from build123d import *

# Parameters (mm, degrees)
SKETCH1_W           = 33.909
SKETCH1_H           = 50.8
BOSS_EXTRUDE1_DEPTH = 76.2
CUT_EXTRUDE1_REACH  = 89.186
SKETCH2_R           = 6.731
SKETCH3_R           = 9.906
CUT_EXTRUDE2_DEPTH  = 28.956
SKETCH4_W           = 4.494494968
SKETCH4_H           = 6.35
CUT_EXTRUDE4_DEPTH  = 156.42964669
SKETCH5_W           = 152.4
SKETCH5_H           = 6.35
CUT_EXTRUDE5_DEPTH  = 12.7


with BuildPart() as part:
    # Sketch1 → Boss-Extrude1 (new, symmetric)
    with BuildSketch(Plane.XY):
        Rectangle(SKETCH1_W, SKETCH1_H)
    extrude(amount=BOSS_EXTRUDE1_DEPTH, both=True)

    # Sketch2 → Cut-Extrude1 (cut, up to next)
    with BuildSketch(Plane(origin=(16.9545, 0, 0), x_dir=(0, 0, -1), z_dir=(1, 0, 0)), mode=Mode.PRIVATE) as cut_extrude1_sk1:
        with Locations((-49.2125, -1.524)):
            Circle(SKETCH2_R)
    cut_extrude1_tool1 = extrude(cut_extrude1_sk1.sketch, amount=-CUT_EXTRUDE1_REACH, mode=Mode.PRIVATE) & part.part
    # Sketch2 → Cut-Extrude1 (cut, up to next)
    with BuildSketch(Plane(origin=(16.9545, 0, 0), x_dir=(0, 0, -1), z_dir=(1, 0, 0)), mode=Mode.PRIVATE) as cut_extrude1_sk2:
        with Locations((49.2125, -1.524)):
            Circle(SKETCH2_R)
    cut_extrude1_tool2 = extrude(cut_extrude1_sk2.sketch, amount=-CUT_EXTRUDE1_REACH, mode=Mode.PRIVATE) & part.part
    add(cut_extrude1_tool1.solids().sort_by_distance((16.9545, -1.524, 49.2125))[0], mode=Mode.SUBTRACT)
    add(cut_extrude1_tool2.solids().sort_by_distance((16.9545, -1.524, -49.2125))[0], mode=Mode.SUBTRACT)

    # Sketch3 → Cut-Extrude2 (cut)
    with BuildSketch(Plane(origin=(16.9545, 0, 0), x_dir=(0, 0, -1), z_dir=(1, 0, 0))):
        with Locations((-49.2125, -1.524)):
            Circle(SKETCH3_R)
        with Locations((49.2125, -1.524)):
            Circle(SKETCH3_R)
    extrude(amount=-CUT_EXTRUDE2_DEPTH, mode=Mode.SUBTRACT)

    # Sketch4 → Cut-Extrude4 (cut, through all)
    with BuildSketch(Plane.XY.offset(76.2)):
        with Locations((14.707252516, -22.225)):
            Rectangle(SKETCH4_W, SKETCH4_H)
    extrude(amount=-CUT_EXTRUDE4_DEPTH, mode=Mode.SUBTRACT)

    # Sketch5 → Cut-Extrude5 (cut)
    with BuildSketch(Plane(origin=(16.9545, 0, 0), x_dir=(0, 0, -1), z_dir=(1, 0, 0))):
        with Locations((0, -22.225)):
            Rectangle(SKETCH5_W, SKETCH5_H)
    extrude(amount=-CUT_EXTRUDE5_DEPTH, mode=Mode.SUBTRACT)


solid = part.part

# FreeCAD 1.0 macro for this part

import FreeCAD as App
import Part
import Sketcher
from FreeCAD import Vector
Q = App.Units.Quantity

doc = App.newDocument("Part")
body = doc.addObject("PartDesign::Body", "Body")

# Sketch on XY plane
sketch1 = body.newObject("Sketcher::SketchObject", "Sketch")
sketch1.AttachmentSupport = (doc.getObject("XY_Plane"), [""])
sketch1.MapMode = "FlatFace"
sketch1.addGeometry(Part.LineSegment(Vector(-16.9545, 25.4, 0), Vector(-16.9545, -25.4, 0)), False)
sketch1.addGeometry(Part.LineSegment(Vector(-16.9545, -25.4, 0), Vector(16.9545, -25.4, 0)), False)
sketch1.addGeometry(Part.LineSegment(Vector(16.9545, -25.4, 0), Vector(16.9545, 25.4, 0)), False)
sketch1.addGeometry(Part.LineSegment(Vector(16.9545, 25.4, 0), Vector(-16.9545, 25.4, 0)), False)
sketch1.addConstraint(Sketcher.Constraint("Coincident", 0, 2, 1, 1))
sketch1.addConstraint(Sketcher.Constraint("Coincident", 1, 2, 2, 1))
sketch1.addConstraint(Sketcher.Constraint("Coincident", 2, 2, 3, 1))
sketch1.addConstraint(Sketcher.Constraint("Coincident", 3, 2, 0, 1))
sketch1.addConstraint(Sketcher.Constraint("Vertical", 0))
sketch1.addConstraint(Sketcher.Constraint("Horizontal", 1))
sketch1.addConstraint(Sketcher.Constraint("Vertical", 2))
sketch1.addConstraint(Sketcher.Constraint("Horizontal", 3))
sketch1.addConstraint(Sketcher.Constraint("Symmetric", 0, 2, 2, 2, -1, 1))
sketch1.addConstraint(Sketcher.Constraint("DistanceY", 0, 2, 0, 1, Q("2 in")))
sketch1.addConstraint(Sketcher.Constraint("DistanceX", 1, 1, 1, 2, Q("1.335 in")))
pad1 = body.newObject("PartDesign::Pad", "Pad")
pad1.Profile = sketch1
pad1.Length = Q("6 in")
pad1.Midplane = True

# Sketch on YZ plane
sketch2 = body.newObject("Sketcher::SketchObject", "Sketch001")
sketch2.AttachmentSupport = (doc.getObject("YZ_Plane"), [""])
sketch2.MapMode = "FlatFace"
sketch2.AttachmentOffset = App.Placement(Vector(0, 0, 0.6675 * 25.4), App.Rotation())
sketch2.addGeometry(Part.Circle(Vector(-1.524, 49.2125, 0), Vector(0, 0, 1), 6.731), False)
sketch2.addConstraint(Sketcher.Constraint("Diameter", 0, Q("0.53 in")))
sketch2.addConstraint(Sketcher.Constraint("DistanceX", 0, 3, -1, 1, Q("0.06 in")))
sketch2.addConstraint(Sketcher.Constraint("DistanceY", -1, 1, 0, 3, Q("1.9375 in")))
pocket1 = body.newObject("PartDesign::Pocket", "Pocket")
pocket1.Profile = sketch2
pocket1.Type = "UpToFirst"

# Sketch on YZ plane
sketch3 = body.newObject("Sketcher::SketchObject", "Sketch002")
sketch3.AttachmentSupport = (doc.getObject("YZ_Plane"), [""])
sketch3.MapMode = "FlatFace"
sketch3.AttachmentOffset = App.Placement(Vector(0, 0, 0.6675 * 25.4), App.Rotation())
sketch3.addGeometry(Part.Circle(Vector(-1.524, -49.2125, 0), Vector(0, 0, 1), 6.731), False)
sketch3.addConstraint(Sketcher.Constraint("Diameter", 0, Q("0.53 in")))
sketch3.addConstraint(Sketcher.Constraint("DistanceX", 0, 3, -1, 1, Q("0.06 in")))
sketch3.addConstraint(Sketcher.Constraint("DistanceY", 0, 3, -1, 1, Q("1.9375 in")))
pocket2 = body.newObject("PartDesign::Pocket", "Pocket001")
pocket2.Profile = sketch3
pocket2.Type = "UpToFirst"

# Sketch on YZ plane
sketch4 = body.newObject("Sketcher::SketchObject", "Sketch003")
sketch4.AttachmentSupport = (doc.getObject("YZ_Plane"), [""])
sketch4.MapMode = "FlatFace"
sketch4.AttachmentOffset = App.Placement(Vector(0, 0, 0.6675 * 25.4), App.Rotation())
sketch4.addGeometry(Part.Circle(Vector(-1.524, 49.2125, 0), Vector(0, 0, 1), 9.906), False)
sketch4.addGeometry(Part.Circle(Vector(-1.524, -49.2125, 0), Vector(0, 0, 1), 9.906), False)
sketch4.addConstraint(Sketcher.Constraint("Equal", 0, 1))
sketch4.addConstraint(Sketcher.Constraint("Symmetric", 0, 3, 1, 3, -1))
sketch4.addConstraint(Sketcher.Constraint("Diameter", 0, Q("0.78 in")))
sketch4.addConstraint(Sketcher.Constraint("DistanceX", 0, 3, -1, 1, Q("0.06 in")))
sketch4.addConstraint(Sketcher.Constraint("DistanceY", -1, 1, 0, 3, Q("1.9375 in")))
pocket3 = body.newObject("PartDesign::Pocket", "Pocket002")
pocket3.Profile = sketch4
pocket3.Length = Q("1.14 in")

# Sketch on XY plane
sketch5 = body.newObject("Sketcher::SketchObject", "Sketch004")
sketch5.AttachmentSupport = (doc.getObject("XY_Plane"), [""])
sketch5.MapMode = "FlatFace"
sketch5.AttachmentOffset = App.Placement(Vector(0, 0, 3 * 25.4), App.Rotation())
sketch5.addGeometry(Part.LineSegment(Vector(12.460005, -19.05, 0), Vector(12.460005, -25.4, 0)), False)
sketch5.addGeometry(Part.LineSegment(Vector(12.460005, -25.4, 0), Vector(16.9545, -25.4, 0)), False)
sketch5.addGeometry(Part.LineSegment(Vector(16.9545, -25.4, 0), Vector(16.9545, -19.05, 0)), False)
sketch5.addGeometry(Part.LineSegment(Vector(16.9545, -19.05, 0), Vector(12.460005, -19.05, 0)), False)
sketch5.addConstraint(Sketcher.Constraint("Coincident", 0, 2, 1, 1))
sketch5.addConstraint(Sketcher.Constraint("Coincident", 1, 2, 2, 1))
sketch5.addConstraint(Sketcher.Constraint("Coincident", 2, 2, 3, 1))
sketch5.addConstraint(Sketcher.Constraint("Coincident", 3, 2, 0, 1))
sketch5.addConstraint(Sketcher.Constraint("Vertical", 0))
sketch5.addConstraint(Sketcher.Constraint("Horizontal", 1))
sketch5.addConstraint(Sketcher.Constraint("Vertical", 2))
sketch5.addConstraint(Sketcher.Constraint("Horizontal", 3))
sketch5.addConstraint(Sketcher.Constraint("DistanceY", 0, 2, -1, 1, Q("1 in")))
sketch5.addConstraint(Sketcher.Constraint("DistanceY", 0, 2, 0, 1, Q("0.25 in")))
sketch5.addConstraint(Sketcher.Constraint("DistanceX", -1, 1, 1, 2, Q("0.6675 in")))
sketch5.addConstraint(Sketcher.Constraint("DistanceX", 1, 1, 1, 2, 4.494495))
pocket4 = body.newObject("PartDesign::Pocket", "Pocket003")
pocket4.Profile = sketch5
pocket4.Type = "ThroughAll"

# Sketch on YZ plane
sketch6 = body.newObject("Sketcher::SketchObject", "Sketch005")
sketch6.AttachmentSupport = (doc.getObject("YZ_Plane"), [""])
sketch6.MapMode = "FlatFace"
sketch6.AttachmentOffset = App.Placement(Vector(0, 0, 0.6675 * 25.4), App.Rotation())
sketch6.addGeometry(Part.LineSegment(Vector(-19.05, 76.2, 0), Vector(-25.4, 76.2, 0)), False)
sketch6.addGeometry(Part.LineSegment(Vector(-25.4, 76.2, 0), Vector(-25.4, -76.2, 0)), False)
sketch6.addGeometry(Part.LineSegment(Vector(-25.4, -76.2, 0), Vector(-19.05, -76.2, 0)), False)
sketch6.addGeometry(Part.LineSegment(Vector(-19.05, -76.2, 0), Vector(-19.05, 76.2, 0)), False)
sketch6.addConstraint(Sketcher.Constraint("Coincident", 0, 2, 1, 1))
sketch6.addConstraint(Sketcher.Constraint("Coincident", 1, 2, 2, 1))
sketch6.addConstraint(Sketcher.Constraint("Coincident", 2, 2, 3, 1))
sketch6.addConstraint(Sketcher.Constraint("Coincident", 3, 2, 0, 1))
sketch6.addConstraint(Sketcher.Constraint("Horizontal", 0))
sketch6.addConstraint(Sketcher.Constraint("Vertical", 1))
sketch6.addConstraint(Sketcher.Constraint("Horizontal", 2))
sketch6.addConstraint(Sketcher.Constraint("Vertical", 3))
sketch6.addConstraint(Sketcher.Constraint("DistanceY", 1, 2, 1, 1, Q("6 in")))
sketch6.addConstraint(Sketcher.Constraint("DistanceX", 0, 2, -1, 1, Q("1 in")))
sketch6.addConstraint(Sketcher.Constraint("DistanceY", -1, 1, 0, 2, Q("3 in")))
sketch6.addConstraint(Sketcher.Constraint("DistanceX", 0, 2, 0, 1, Q("0.25 in")))
pocket5 = body.newObject("PartDesign::Pocket", "Pocket004")
pocket5.Profile = sketch6
pocket5.Length = Q("0.5 in")

doc.recompute()
